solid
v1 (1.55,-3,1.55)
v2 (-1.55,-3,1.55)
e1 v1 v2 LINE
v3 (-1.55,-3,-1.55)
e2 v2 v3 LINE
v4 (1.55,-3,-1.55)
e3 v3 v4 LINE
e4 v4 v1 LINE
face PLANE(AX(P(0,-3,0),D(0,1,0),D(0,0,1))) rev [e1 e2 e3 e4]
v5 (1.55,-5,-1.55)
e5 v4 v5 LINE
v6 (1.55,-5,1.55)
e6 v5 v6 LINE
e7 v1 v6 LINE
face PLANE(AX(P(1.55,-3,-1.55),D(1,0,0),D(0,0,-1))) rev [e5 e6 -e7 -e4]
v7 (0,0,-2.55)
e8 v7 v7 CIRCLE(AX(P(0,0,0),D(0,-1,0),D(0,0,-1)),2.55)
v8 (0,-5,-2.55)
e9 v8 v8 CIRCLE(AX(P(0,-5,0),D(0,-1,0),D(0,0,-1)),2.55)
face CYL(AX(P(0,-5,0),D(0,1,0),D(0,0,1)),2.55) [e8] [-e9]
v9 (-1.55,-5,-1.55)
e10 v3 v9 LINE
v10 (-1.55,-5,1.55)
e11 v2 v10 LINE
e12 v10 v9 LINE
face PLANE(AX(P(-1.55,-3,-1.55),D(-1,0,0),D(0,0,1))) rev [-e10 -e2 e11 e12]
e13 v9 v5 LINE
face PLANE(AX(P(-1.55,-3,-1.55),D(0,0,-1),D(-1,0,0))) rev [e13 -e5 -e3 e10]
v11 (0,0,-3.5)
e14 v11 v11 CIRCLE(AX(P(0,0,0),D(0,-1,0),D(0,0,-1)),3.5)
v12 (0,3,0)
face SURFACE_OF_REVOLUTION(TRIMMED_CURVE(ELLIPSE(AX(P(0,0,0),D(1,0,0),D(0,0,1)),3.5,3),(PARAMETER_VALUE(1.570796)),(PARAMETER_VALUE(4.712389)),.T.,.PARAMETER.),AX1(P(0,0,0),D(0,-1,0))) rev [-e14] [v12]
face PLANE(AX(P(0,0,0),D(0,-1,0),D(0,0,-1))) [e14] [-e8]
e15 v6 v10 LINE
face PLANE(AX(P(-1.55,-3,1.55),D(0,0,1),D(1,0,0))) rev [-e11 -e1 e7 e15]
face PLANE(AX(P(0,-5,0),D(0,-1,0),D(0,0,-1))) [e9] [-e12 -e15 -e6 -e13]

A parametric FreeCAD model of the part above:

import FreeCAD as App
import Part
import Sketcher

V = App.Vector

doc = App.newDocument("Part")
body = doc.addObject("PartDesign::Body", "Body")

# Sketch on YZ plane
sketch1 = doc.addObject("Sketcher::SketchObject", "Sketch")
body.addObject(sketch1)
sketch1.AttachmentSupport = (doc.YZ_Plane, [""])
sketch1.MapMode = "FlatFace"
sketch1.addGeometry([
    Part.LineSegment(V(3, 0, 0), V(0, 0, 0)),
    Part.LineSegment(V(0, 0, 0), V(0, -3.5, 0)),
    Part.BSplineCurve([V(0, -3.5, 0), V(3, -3.5, 0), V(3, 0, 0)], [3, 3], [3.141592654, 4.71238898], False, 2, [1, 0.707106781, 1], False),
], False)
sketch1.addConstraint([
    Sketcher.Constraint("Block", 2),
    Sketcher.Constraint("Coincident", 0, 2, 1, 1),
    Sketcher.Constraint("Coincident", 1, 2, 2, 1),
    Sketcher.Constraint("Coincident", 2, 2, 0, 1),
    Sketcher.Constraint("Horizontal", 0),
    Sketcher.Constraint("Vertical", 1),
])
revolution = doc.addObject("PartDesign::Revolution", "Revolution")
body.addObject(revolution)
revolution.Profile = sketch1
revolution.ReferenceAxis = (sketch1, ["H_Axis"])
revolution.Angle = 360

# Sketch on XZ plane
sketch2 = doc.addObject("Sketcher::SketchObject", "Sketch001")
body.addObject(sketch2)
sketch2.AttachmentSupport = (doc.XZ_Plane, [""])
sketch2.MapMode = "FlatFace"
sketch2.addGeometry(Part.Circle(V(0, 0, 0), V(0, 0, 1), 2.55), False)
sketch2.addConstraint([
    Sketcher.Constraint("Coincident", 0, 3, -1, 1),
    Sketcher.Constraint("Diameter", 0, 5.1),
])
pad1 = doc.addObject("PartDesign::Pad", "Pad")
body.addObject(pad1)
pad1.Profile = sketch2
pad1.Length = 5

# Sketch on XZ plane
sketch3 = doc.addObject("Sketcher::SketchObject", "Sketch002")
body.addObject(sketch3)
sketch3.AttachmentSupport = (doc.XZ_Plane, [""])
sketch3.MapMode = "FlatFace"
sketch3.AttachmentOffset = App.Placement(V(0, 0, 5), App.Rotation())
sketch3.addGeometry([
    Part.LineSegment(V(-1.55, 1.55, 0), V(-1.55, -1.55, 0)),
    Part.LineSegment(V(-1.55, -1.55, 0), V(1.55, -1.55, 0)),
    Part.LineSegment(V(1.55, -1.55, 0), V(1.55, 1.55, 0)),
    Part.LineSegment(V(1.55, 1.55, 0), V(-1.55, 1.55, 0)),
], False)
sketch3.addConstraint([
    Sketcher.Constraint("Coincident", 0, 2, 1, 1),
    Sketcher.Constraint("Coincident", 1, 2, 2, 1),
    Sketcher.Constraint("Coincident", 2, 2, 3, 1),
    Sketcher.Constraint("Coincident", 3, 2, 0, 1),
    Sketcher.Constraint("Vertical", 0),
    Sketcher.Constraint("Horizontal", 1),
    Sketcher.Constraint("Vertical", 2),
    Sketcher.Constraint("Horizontal", 3),
    Sketcher.Constraint("Symmetric", 0, 2, 2, 2, -1, 1),
    Sketcher.Constraint("Equal", 3, 0),
    Sketcher.Constraint("DistanceX", 1, 1, 1, 2, 3.1),
])
pocket1 = doc.addObject("PartDesign::Pocket", "Pocket")
body.addObject(pocket1)
pocket1.Profile = sketch3
pocket1.Length = 2

doc.recompute()
